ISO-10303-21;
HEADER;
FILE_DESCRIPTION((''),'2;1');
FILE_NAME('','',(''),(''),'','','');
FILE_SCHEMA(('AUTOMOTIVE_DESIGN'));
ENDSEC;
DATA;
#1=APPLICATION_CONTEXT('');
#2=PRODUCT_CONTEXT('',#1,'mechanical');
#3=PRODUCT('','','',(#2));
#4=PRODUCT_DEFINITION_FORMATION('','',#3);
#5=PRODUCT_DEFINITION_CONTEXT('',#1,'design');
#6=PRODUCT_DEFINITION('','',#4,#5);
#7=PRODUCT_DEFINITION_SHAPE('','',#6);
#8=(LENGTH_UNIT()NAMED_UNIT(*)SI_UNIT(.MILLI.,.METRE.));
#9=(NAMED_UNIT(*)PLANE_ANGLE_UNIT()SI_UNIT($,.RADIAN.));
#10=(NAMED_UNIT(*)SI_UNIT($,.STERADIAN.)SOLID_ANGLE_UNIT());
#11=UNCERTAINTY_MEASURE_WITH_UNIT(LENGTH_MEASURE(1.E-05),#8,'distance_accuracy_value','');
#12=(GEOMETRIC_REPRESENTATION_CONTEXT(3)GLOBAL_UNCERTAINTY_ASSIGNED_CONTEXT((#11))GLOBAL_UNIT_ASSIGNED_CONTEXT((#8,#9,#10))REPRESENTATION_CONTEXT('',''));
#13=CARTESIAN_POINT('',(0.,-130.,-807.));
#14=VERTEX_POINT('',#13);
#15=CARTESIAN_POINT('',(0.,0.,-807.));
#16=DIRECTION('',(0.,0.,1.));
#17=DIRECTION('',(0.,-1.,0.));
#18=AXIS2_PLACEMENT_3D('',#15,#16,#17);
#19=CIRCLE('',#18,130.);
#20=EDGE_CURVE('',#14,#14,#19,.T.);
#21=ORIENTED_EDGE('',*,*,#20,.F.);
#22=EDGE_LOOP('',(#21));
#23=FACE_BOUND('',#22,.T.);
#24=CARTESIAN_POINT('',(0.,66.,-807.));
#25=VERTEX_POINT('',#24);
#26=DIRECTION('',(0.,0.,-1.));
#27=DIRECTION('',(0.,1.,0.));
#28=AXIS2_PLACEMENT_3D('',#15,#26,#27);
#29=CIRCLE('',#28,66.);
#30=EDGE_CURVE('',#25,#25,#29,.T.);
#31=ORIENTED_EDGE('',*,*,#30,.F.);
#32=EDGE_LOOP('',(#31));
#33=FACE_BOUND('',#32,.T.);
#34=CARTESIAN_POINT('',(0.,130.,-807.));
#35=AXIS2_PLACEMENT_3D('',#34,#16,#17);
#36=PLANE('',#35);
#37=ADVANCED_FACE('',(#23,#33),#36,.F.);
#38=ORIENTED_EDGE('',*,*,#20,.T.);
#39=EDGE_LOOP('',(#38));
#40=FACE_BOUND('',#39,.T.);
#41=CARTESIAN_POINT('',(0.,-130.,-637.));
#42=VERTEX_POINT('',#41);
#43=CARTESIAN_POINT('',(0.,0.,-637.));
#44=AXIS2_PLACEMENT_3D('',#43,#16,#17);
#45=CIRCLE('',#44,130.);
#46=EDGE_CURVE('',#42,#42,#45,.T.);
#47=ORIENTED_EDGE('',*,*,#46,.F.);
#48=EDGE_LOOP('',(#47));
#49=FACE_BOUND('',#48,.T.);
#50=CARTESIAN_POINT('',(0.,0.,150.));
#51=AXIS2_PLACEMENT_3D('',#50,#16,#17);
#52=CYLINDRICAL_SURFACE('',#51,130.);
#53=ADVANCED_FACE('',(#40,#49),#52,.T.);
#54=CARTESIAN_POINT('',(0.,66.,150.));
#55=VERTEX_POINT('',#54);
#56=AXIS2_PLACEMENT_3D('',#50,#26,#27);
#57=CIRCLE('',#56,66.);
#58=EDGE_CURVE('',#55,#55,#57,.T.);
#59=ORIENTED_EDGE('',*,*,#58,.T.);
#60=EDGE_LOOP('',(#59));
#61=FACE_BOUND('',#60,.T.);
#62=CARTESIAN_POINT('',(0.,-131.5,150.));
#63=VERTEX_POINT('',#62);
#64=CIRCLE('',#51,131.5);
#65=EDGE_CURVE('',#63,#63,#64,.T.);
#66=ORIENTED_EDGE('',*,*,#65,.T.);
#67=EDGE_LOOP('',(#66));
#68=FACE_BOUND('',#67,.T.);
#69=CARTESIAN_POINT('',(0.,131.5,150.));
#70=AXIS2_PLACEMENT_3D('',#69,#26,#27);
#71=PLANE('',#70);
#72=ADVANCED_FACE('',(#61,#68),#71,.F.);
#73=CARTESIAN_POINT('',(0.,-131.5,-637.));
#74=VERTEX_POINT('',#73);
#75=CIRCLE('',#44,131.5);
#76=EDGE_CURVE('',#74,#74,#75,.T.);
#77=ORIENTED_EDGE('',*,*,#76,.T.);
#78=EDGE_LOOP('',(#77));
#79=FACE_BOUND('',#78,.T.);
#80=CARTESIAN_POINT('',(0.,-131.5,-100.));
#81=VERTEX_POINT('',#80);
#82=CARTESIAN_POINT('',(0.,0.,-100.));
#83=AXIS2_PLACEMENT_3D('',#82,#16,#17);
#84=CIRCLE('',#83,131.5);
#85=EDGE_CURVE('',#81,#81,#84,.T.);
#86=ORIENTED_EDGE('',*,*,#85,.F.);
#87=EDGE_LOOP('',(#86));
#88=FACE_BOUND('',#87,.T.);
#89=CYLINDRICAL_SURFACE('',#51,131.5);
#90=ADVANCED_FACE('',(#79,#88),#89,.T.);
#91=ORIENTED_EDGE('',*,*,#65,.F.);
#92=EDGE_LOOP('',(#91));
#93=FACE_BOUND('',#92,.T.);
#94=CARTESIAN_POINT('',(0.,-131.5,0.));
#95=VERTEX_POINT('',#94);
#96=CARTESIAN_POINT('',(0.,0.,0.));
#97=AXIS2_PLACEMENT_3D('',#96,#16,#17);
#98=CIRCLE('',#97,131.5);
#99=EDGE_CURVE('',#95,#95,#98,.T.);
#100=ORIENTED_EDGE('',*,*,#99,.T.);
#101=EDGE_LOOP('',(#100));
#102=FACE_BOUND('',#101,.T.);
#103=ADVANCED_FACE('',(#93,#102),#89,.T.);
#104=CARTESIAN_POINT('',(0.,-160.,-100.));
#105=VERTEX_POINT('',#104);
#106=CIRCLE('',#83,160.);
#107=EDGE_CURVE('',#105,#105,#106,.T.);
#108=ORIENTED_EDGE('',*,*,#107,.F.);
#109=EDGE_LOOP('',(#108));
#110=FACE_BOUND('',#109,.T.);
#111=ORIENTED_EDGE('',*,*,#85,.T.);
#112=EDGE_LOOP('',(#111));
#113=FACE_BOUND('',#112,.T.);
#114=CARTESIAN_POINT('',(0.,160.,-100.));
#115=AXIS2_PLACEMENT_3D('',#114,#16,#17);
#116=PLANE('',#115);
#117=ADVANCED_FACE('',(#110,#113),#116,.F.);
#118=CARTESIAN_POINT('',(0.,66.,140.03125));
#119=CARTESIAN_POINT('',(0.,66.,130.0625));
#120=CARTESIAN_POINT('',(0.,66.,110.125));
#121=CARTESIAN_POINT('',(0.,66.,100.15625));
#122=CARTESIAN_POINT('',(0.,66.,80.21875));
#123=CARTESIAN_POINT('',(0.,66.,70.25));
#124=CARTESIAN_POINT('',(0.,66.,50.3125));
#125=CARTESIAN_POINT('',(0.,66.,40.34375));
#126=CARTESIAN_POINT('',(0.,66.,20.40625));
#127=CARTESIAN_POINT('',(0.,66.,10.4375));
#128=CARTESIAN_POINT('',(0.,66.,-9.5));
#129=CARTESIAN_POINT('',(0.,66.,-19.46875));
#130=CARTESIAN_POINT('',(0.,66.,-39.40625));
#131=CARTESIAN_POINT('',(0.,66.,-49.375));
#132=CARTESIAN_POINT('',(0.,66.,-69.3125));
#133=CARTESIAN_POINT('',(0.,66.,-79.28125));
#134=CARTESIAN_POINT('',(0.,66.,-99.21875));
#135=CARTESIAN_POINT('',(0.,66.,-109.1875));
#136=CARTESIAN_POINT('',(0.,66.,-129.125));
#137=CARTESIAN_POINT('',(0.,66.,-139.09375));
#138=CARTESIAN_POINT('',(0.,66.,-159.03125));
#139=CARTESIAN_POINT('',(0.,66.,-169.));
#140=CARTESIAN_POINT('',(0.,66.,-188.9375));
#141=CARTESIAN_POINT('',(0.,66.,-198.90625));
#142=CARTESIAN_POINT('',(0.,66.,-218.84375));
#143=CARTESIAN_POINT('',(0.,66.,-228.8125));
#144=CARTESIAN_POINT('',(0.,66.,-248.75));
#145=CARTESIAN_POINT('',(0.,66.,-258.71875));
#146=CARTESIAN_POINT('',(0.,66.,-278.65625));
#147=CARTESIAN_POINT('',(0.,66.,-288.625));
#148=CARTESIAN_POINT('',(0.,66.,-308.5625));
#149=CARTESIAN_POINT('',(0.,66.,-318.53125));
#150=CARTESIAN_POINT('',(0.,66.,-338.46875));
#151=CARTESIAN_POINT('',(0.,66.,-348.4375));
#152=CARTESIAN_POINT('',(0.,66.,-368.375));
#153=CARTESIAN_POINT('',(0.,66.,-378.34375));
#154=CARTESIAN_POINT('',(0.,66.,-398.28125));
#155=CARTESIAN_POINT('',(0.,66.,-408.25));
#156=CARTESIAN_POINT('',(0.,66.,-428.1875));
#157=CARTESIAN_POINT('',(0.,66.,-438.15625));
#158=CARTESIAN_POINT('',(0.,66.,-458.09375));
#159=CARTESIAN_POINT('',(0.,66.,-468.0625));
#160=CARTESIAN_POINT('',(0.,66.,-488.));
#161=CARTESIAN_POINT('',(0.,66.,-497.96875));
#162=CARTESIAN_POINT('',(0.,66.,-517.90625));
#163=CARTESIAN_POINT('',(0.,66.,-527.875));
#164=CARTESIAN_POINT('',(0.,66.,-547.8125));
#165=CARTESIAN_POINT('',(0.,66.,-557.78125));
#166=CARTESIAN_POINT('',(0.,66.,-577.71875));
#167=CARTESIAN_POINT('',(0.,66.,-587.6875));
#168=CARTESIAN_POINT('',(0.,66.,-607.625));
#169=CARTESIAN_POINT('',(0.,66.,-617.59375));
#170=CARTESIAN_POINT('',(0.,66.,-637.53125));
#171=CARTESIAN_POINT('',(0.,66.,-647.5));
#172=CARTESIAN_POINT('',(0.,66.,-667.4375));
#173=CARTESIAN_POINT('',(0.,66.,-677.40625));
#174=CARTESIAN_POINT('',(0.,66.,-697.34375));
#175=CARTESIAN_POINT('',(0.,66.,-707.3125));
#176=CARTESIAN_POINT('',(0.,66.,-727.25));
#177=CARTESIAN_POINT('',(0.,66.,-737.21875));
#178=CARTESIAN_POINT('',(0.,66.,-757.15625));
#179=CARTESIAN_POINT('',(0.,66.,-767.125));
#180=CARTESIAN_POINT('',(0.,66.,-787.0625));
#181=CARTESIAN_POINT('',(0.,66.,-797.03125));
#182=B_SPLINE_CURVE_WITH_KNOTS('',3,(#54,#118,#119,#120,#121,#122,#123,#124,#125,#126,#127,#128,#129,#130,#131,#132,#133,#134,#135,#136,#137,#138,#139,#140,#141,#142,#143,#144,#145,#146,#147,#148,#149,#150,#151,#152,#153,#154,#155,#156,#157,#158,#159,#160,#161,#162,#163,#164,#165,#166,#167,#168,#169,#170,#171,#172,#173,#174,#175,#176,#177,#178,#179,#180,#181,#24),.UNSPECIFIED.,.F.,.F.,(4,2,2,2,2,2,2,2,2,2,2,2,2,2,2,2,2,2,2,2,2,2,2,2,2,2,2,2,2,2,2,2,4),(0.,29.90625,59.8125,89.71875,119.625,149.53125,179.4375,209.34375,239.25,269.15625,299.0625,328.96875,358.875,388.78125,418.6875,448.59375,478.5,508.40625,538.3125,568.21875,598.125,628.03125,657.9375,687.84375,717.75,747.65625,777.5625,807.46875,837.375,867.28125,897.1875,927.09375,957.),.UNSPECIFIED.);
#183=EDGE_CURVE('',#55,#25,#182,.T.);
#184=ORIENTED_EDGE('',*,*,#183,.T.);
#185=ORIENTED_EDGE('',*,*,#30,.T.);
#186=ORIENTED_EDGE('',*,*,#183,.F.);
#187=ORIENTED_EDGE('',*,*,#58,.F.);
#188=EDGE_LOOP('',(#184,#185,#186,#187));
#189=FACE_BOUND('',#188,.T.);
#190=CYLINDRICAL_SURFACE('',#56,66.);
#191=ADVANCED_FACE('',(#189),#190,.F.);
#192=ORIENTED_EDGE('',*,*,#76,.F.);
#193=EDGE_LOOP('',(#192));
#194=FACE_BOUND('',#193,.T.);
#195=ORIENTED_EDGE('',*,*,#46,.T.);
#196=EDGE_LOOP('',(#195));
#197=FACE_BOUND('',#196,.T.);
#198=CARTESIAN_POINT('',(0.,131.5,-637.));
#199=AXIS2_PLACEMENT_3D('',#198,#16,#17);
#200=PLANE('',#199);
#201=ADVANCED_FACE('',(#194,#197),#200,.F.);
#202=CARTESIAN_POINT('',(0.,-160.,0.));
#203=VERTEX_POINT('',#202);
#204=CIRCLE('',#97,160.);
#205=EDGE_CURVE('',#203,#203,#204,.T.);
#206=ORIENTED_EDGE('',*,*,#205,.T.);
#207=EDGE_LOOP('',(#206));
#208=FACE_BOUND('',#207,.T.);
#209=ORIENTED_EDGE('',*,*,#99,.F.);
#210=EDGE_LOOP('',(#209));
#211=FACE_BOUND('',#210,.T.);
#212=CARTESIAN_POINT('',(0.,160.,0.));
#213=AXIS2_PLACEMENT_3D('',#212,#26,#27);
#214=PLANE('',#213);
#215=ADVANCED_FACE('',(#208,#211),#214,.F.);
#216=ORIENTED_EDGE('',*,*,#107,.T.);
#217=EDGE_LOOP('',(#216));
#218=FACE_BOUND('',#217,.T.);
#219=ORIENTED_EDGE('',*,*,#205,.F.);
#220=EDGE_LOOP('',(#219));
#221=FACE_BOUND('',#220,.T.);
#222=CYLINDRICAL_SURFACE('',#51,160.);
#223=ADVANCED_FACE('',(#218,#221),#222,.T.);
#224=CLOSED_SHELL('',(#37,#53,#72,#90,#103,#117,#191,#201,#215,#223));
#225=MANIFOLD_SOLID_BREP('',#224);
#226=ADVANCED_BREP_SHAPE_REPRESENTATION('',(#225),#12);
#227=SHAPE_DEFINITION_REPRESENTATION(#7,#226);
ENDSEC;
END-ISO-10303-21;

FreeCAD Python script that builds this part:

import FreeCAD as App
import Part
import Sketcher
from FreeCAD import Vector

doc = App.newDocument("Part")
body = doc.addObject("PartDesign::Body", "Body")

sketch1 = body.newObject("Sketcher::SketchObject", "Sketch")
sketch1.AttachmentSupport = (doc.getObject("YZ_Plane"), [""])
sketch1.MapMode = "FlatFace"
sketch1.addGeometry([
    Part.LineSegment(Vector(160, -100, 0), Vector(160, 0, 0)),
    Part.LineSegment(Vector(160, 0, 0), Vector(131.5, 0, 0)),
    Part.LineSegment(Vector(131.5, 0, 0), Vector(131.5, 150, 0)),
    Part.LineSegment(Vector(131.5, 150, 0), Vector(0, 150, 0)),
    Part.LineSegment(Vector(0, 150, 0), Vector(0, -807, 0)),
    Part.LineSegment(Vector(0, -807, 0), Vector(130, -807, 0)),
    Part.LineSegment(Vector(130, -807, 0), Vector(130, -637, 0)),
    Part.LineSegment(Vector(130, -637, 0), Vector(131.5, -637, 0)),
    Part.LineSegment(Vector(131.5, -637, 0), Vector(131.5, -100, 0)),
    Part.LineSegment(Vector(131.5, -100, 0), Vector(160, -100, 0)),
], False)
sketch1.addConstraint([
    Sketcher.Constraint("Coincident", 0, 2, 1, 1),
    Sketcher.Constraint("Coincident", 1, 2, 2, 1),
    Sketcher.Constraint("Coincident", 2, 2, 3, 1),
    Sketcher.Constraint("Coincident", 3, 2, 4, 1),
    Sketcher.Constraint("Coincident", 4, 2, 5, 1),
    Sketcher.Constraint("Coincident", 5, 2, 6, 1),
    Sketcher.Constraint("Coincident", 6, 2, 7, 1),
    Sketcher.Constraint("Coincident", 7, 2, 8, 1),
    Sketcher.Constraint("Coincident", 8, 2, 9, 1),
    Sketcher.Constraint("Coincident", 9, 2, 0, 1),
    Sketcher.Constraint("Vertical", 0),
    Sketcher.Constraint("Horizontal", 1),
    Sketcher.Constraint("Vertical", 2),
    Sketcher.Constraint("Horizontal", 3),
    Sketcher.Constraint("Vertical", 4),
    Sketcher.Constraint("Horizontal", 5),
    Sketcher.Constraint("Vertical", 6),
    Sketcher.Constraint("Horizontal", 7),
    Sketcher.Constraint("Vertical", 8),
    Sketcher.Constraint("Horizontal", 9),
    Sketcher.Constraint("PointOnObject", 0, 2, -1),
    Sketcher.Constraint("PointOnObject", 3, 2, -2),
    Sketcher.Constraint("Vertical", 2, 2, 7, 2),
    Sketcher.Constraint("DistanceX", 5, 1, 5, 2, 130.0),
    Sketcher.Constraint("DistanceY", 0, 1, 0, 2, 100.0),
    Sketcher.Constraint("DistanceY", 2, 1, 2, 2, 150.0),
    Sketcher.Constraint("DistanceY", 4, 2, 4, 1, 957.0),
    Sketcher.Constraint("DistanceY", 6, 1, 6, 2, 170.0),
    Sketcher.Constraint("DistanceX", 1, 2, 1, 1, 28.5),
    Sketcher.Constraint("DistanceX", 3, 2, 3, 1, 131.5),
])
revolution = body.newObject("PartDesign::Revolution", "Revolution")
revolution.Profile = sketch1
revolution.ReferenceAxis = (sketch1, ["V_Axis"])
revolution.Angle = 360

sketch2 = body.newObject("Sketcher::SketchObject", "Sketch001")
sketch2.AttachmentSupport = (doc.getObject("XY_Plane"), [""])
sketch2.MapMode = "FlatFace"
sketch2.AttachmentOffset = App.Placement(Vector(0, 0, -807), App.Rotation())
sketch2.addGeometry(Part.Circle(Vector(0, 0, 0), Vector(0, 0, 1), 66), False)
sketch2.addConstraint([
    Sketcher.Constraint("Coincident", 0, 3, -1, 1),
    Sketcher.Constraint("Diameter", 0, 132.0),
])
pocket1 = body.newObject("PartDesign::Pocket", "Pocket")
pocket1.Profile = sketch2
pocket1.Type = "ThroughAll"
pocket1.Reversed = True

doc.recompute()
